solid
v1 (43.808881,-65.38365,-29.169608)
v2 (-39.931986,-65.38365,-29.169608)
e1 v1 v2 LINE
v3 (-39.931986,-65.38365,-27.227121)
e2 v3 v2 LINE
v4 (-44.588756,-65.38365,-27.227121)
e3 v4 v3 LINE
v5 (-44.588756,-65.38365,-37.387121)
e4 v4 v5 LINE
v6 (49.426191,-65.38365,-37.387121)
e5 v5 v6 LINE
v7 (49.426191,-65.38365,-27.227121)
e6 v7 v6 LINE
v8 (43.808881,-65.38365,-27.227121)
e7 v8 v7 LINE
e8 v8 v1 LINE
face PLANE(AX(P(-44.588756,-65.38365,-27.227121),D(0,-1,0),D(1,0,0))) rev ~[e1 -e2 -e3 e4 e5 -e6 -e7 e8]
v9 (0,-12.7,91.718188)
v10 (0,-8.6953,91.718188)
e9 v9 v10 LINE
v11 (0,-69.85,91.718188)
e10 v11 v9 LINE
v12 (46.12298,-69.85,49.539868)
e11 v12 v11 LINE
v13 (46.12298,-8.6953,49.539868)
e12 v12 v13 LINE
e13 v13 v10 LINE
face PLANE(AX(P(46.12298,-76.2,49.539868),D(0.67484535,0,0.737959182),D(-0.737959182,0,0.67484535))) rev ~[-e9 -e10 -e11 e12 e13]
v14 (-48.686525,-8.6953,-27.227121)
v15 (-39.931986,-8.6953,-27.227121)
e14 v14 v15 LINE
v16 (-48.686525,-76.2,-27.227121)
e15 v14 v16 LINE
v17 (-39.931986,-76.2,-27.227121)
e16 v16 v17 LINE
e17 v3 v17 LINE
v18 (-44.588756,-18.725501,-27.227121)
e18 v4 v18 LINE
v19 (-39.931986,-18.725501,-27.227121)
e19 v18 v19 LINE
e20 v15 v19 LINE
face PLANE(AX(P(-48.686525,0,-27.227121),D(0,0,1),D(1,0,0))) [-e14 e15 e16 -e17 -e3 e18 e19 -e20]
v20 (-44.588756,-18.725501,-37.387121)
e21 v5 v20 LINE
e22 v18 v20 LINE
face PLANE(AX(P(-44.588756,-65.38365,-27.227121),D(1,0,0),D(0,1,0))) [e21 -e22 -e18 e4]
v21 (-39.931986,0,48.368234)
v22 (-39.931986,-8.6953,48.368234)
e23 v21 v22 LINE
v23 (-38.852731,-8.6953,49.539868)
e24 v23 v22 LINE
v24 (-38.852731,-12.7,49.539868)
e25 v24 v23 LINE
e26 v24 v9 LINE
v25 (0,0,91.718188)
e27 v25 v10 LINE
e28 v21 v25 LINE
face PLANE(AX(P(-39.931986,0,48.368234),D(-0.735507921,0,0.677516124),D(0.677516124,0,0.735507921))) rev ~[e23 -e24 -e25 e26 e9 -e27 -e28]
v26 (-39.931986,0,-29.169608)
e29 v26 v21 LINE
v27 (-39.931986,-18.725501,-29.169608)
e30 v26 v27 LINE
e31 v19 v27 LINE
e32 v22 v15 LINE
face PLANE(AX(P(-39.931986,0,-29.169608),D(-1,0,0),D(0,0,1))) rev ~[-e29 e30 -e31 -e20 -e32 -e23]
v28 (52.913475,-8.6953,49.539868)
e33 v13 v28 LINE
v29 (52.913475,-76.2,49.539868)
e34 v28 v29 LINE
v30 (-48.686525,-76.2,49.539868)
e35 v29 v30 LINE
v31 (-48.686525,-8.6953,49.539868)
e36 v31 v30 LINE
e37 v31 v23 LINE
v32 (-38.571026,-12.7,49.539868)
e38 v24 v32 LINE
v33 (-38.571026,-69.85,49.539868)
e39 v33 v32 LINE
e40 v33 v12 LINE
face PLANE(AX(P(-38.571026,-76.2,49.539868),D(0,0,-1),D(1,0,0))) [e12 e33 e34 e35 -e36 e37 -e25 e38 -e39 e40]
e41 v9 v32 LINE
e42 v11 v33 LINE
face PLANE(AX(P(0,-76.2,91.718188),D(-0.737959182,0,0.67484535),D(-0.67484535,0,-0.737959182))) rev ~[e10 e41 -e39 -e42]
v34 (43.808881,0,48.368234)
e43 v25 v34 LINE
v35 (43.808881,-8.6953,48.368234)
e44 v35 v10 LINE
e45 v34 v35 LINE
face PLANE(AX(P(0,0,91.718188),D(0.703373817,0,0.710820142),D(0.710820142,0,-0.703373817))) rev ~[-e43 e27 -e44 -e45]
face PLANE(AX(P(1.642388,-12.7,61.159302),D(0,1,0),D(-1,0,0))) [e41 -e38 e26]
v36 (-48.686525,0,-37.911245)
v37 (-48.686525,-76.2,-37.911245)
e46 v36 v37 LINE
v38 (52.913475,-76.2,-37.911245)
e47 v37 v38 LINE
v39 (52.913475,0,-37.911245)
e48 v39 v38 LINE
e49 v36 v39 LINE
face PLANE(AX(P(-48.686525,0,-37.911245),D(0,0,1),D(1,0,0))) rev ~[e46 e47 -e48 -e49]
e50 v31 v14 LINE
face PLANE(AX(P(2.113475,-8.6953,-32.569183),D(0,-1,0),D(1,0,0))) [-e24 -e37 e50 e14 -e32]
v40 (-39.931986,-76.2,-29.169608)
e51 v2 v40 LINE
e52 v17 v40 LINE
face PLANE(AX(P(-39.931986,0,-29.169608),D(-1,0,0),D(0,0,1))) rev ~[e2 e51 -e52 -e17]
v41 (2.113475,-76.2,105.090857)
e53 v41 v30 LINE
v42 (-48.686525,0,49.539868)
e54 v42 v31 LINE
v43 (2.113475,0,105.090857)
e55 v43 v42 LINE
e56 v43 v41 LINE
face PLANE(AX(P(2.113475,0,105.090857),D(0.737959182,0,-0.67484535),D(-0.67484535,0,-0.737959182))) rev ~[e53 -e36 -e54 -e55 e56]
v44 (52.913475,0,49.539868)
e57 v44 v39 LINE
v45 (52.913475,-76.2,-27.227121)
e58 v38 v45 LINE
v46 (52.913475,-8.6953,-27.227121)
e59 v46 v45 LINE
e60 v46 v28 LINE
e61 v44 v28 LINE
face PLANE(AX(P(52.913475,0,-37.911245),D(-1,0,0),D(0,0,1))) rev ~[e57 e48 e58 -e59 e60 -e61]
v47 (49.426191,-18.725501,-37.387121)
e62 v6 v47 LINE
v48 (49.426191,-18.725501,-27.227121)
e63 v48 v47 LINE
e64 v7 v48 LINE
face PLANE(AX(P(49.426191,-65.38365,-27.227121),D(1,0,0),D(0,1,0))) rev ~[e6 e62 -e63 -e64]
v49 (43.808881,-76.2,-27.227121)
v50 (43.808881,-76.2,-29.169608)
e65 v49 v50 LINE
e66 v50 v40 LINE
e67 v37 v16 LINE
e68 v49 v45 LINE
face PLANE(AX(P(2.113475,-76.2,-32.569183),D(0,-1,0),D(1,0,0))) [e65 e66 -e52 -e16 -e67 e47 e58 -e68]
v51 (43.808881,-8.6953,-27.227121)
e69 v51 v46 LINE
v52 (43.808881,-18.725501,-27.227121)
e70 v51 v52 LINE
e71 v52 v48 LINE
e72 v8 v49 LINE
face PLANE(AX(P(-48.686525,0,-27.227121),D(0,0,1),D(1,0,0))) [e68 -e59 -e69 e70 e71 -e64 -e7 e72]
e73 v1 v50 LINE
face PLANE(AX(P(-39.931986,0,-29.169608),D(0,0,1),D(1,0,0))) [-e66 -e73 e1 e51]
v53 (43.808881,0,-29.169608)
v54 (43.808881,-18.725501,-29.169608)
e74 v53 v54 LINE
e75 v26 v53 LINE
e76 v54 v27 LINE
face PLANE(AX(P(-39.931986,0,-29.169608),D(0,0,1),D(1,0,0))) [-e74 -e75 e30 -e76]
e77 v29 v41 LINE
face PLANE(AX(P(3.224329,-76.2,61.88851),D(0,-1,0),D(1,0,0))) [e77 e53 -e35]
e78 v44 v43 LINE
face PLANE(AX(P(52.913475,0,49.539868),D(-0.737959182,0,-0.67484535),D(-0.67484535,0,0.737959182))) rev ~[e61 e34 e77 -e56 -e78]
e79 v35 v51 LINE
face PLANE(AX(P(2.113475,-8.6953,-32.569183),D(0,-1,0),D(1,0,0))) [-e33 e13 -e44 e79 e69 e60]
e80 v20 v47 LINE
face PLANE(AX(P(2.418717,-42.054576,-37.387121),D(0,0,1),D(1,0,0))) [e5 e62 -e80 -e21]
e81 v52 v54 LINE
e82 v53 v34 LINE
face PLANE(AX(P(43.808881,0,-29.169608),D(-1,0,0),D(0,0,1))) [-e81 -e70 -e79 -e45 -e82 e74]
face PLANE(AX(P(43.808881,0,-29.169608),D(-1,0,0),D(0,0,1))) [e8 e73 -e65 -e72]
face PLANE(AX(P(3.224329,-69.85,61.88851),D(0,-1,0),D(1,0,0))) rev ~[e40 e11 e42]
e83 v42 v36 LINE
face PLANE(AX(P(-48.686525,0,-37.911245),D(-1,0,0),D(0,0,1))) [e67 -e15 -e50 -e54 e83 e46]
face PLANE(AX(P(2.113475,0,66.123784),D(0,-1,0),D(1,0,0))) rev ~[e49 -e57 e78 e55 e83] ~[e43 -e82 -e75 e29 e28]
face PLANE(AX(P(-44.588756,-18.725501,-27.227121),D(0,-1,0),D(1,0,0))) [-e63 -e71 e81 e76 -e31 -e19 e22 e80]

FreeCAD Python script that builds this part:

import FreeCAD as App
import Part
import Sketcher
from FreeCAD import Vector
Q = App.Units.Quantity

doc = App.newDocument("Part")
body = doc.addObject("PartDesign::Body", "Body")

sketch1 = body.newObject("Sketcher::SketchObject", "Sketch")
sketch1.AttachmentSupport = (doc.getObject("XZ_Plane"), [""])
sketch1.MapMode = "FlatFace"
sketch1.addGeometry(Part.LineSegment(Vector(-49, -27, 0), Vector(-49, -38, 0)), False)
sketch1.addGeometry(Part.LineSegment(Vector(-49, -38, 0), Vector(53, -38, 0)), False)
sketch1.addGeometry(Part.LineSegment(Vector(53, -38, 0), Vector(53, -27, 0)), False)
sketch1.addGeometry(Part.LineSegment(Vector(53, -27, 0), Vector(-49, -27, 0)), False)
sketch1.addConstraint(Sketcher.Constraint("Coincident", 0, 2, 1, 1))
sketch1.addConstraint(Sketcher.Constraint("Coincident", 1, 2, 2, 1))
sketch1.addConstraint(Sketcher.Constraint("Coincident", 2, 2, 3, 1))
sketch1.addConstraint(Sketcher.Constraint("Coincident", 3, 2, 0, 1))
sketch1.addConstraint(Sketcher.Constraint("Vertical", 0))
sketch1.addConstraint(Sketcher.Constraint("Horizontal", 1))
sketch1.addConstraint(Sketcher.Constraint("Vertical", 2))
sketch1.addConstraint(Sketcher.Constraint("Horizontal", 3))
sketch1.addConstraint(Sketcher.Constraint("DistanceX", 1, 1, 1, 2, Q("4 in")))
sketch1.addConstraint(Sketcher.Constraint("DistanceY", 0, 2, 0, 1, Q("10.684125 mm")))
sketch1.addConstraint(Sketcher.Constraint("DistanceY", 2, 2, -1, 1, Q("27.227121 mm")))
sketch1.addConstraint(Sketcher.Constraint("DistanceX", 0, 2, -1, 1, Q("48.686525 mm")))
pad1 = body.newObject("PartDesign::Pad", "Pad")
pad1.Profile = sketch1
pad1.Length = Q("3 in")

sketch2 = body.newObject("Sketcher::SketchObject", "Sketch001")
sketch2.AttachmentSupport = (doc.getObject("XZ_Plane"), [""])
sketch2.MapMode = "FlatFace"
sketch2.addGeometry(Part.LineSegment(Vector(-49, -38, 0), Vector(53, -38, 0)), False)
sketch2.addGeometry(Part.LineSegment(Vector(53, -38, 0), Vector(53, 50, 0)), False)
sketch2.addGeometry(Part.LineSegment(Vector(53, 50, 0), Vector(-49, 50, 0)), False)
sketch2.addGeometry(Part.LineSegment(Vector(-49, 50, 0), Vector(-49, -38, 0)), False)
sketch2.addConstraint(Sketcher.Constraint("Coincident", 0, 2, 1, 1))
sketch2.addConstraint(Sketcher.Constraint("Coincident", 1, 2, 2, 1))
sketch2.addConstraint(Sketcher.Constraint("Coincident", 2, 2, 3, 1))
sketch2.addConstraint(Sketcher.Constraint("Coincident", 3, 2, 0, 1))
sketch2.addConstraint(Sketcher.Constraint("Horizontal", 0))
sketch2.addConstraint(Sketcher.Constraint("Vertical", 1))
sketch2.addConstraint(Sketcher.Constraint("Horizontal", 2))
sketch2.addConstraint(Sketcher.Constraint("Vertical", 3))
sketch2.addConstraint(Sketcher.Constraint("DistanceX", 0, 1, 0, 2, Q("4 in")))
sketch2.addConstraint(Sketcher.Constraint("DistanceY", 1, 1, 1, 2, Q("87.451113 mm")))
sketch2.addConstraint(Sketcher.Constraint("DistanceX", -1, 1, 0, 2, Q("52.913475 mm")))
sketch2.addConstraint(Sketcher.Constraint("DistanceY", 0, 2, -1, 1, Q("37.911245 mm")))
pad2 = body.newObject("PartDesign::Pad", "Pad001")
pad2.Profile = sketch2
pad2.Length = 8.6953

sketch3 = body.newObject("Sketcher::SketchObject", "Sketch002")
sketch3.AttachmentSupport = (doc.getObject("XZ_Plane"), [""])
sketch3.MapMode = "FlatFace"
sketch3.addGeometry(Part.LineSegment(Vector(2, 105, 0), Vector(-49, 50, 0)), False)
sketch3.addGeometry(Part.LineSegment(Vector(-49, 50, 0), Vector(53, 50, 0)), False)
sketch3.addGeometry(Part.LineSegment(Vector(53, 50, 0), Vector(2, 105, 0)), False)
sketch3.addConstraint(Sketcher.Constraint("Coincident", 0, 2, 1, 1))
sketch3.addConstraint(Sketcher.Constraint("Coincident", 1, 2, 2, 1))
sketch3.addConstraint(Sketcher.Constraint("Coincident", 2, 2, 0, 1))
sketch3.addConstraint(Sketcher.Constraint("Horizontal", 1))
sketch3.addConstraint(Sketcher.Constraint("Equal", 0, 2))
sketch3.addConstraint(Sketcher.Constraint("DistanceX", 1, 1, 1, 2, Q("4 in")))
sketch3.addConstraint(Sketcher.Constraint("DistanceY", 0, 2, 2, 2, Q("55.550989 mm")))
sketch3.addConstraint(Sketcher.Constraint("DistanceX", 0, 2, -1, 1, Q("48.686525 mm")))
sketch3.addConstraint(Sketcher.Constraint("DistanceY", -1, 1, 0, 2, Q("49.539868 mm")))
pad3 = body.newObject("PartDesign::Pad", "Pad002")
pad3.Profile = sketch3
pad3.Length = Q("3 in")

sketch4 = body.newObject("Sketcher::SketchObject", "Sketch003")
sketch4.AttachmentSupport = (doc.getObject("XY_Plane"), [""])
sketch4.MapMode = "FlatFace"
sketch4.AttachmentOffset = App.Placement(Vector(0, 0, -27.227121), App.Rotation())
sketch4.addGeometry(Part.LineSegment(Vector(-45, -19, 0), Vector(-45, -65, 0)), False)
sketch4.addGeometry(Part.LineSegment(Vector(-45, -65, 0), Vector(49, -65, 0)), False)
sketch4.addGeometry(Part.LineSegment(Vector(49, -65, 0), Vector(49, -19, 0)), False)
sketch4.addGeometry(Part.LineSegment(Vector(49, -19, 0), Vector(-45, -19, 0)), False)
sketch4.addConstraint(Sketcher.Constraint("Coincident", 0, 2, 1, 1))
sketch4.addConstraint(Sketcher.Constraint("Coincident", 1, 2, 2, 1))
sketch4.addConstraint(Sketcher.Constraint("Coincident", 2, 2, 3, 1))
sketch4.addConstraint(Sketcher.Constraint("Coincident", 3, 2, 0, 1))
sketch4.addConstraint(Sketcher.Constraint("Vertical", 0))
sketch4.addConstraint(Sketcher.Constraint("Horizontal", 1))
sketch4.addConstraint(Sketcher.Constraint("Vertical", 2))
sketch4.addConstraint(Sketcher.Constraint("Horizontal", 3))
sketch4.addConstraint(Sketcher.Constraint("DistanceY", 0, 2, 0, 1, Q("46.658149 mm")))
sketch4.addConstraint(Sketcher.Constraint("DistanceY", 2, 2, -1, 1, Q("18.725501 mm")))
sketch4.addConstraint(Sketcher.Constraint("DistanceX", 1, 1, 1, 2, Q("94.014946 mm")))
sketch4.addConstraint(Sketcher.Constraint("DistanceX", -1, 1, 1, 2, Q("49.426191 mm")))
pocket1 = body.newObject("PartDesign::Pocket", "Pocket")
pocket1.Profile = sketch4
pocket1.Length = Q("0.4 in")

sketch5 = body.newObject("Sketcher::SketchObject", "Sketch004")
sketch5.AttachmentSupport = (doc.getObject("XZ_Plane"), [""])
sketch5.MapMode = "FlatFace"
sketch5.AttachmentOffset = App.Placement(Vector(0, 0, 3 * 25.4), App.Rotation())
sketch5.addGeometry(Part.LineSegment(Vector(0, 92, 0), Vector(-39, 50, 0)), False)
sketch5.addGeometry(Part.LineSegment(Vector(-39, 50, 0), Vector(46, 50, 0)), False)
sketch5.addGeometry(Part.LineSegment(Vector(46, 50, 0), Vector(0, 92, 0)), False)
sketch5.addConstraint(Sketcher.Constraint("Coincident", 0, 2, 1, 1))
sketch5.addConstraint(Sketcher.Constraint("Coincident", 1, 2, 2, 1))
sketch5.addConstraint(Sketcher.Constraint("Coincident", 2, 2, 0, 1))
sketch5.addConstraint(Sketcher.Constraint("Horizontal", 1))
sketch5.addConstraint(Sketcher.Constraint("PointOnObject", 2, 2, -2))
sketch5.addConstraint(Sketcher.Constraint("Perpendicular", 0, 2))
sketch5.addConstraint(Sketcher.Constraint("Distance", 2, Q("62.500719 mm")))
sketch5.addConstraint(Sketcher.Constraint("DistanceX", 1, 1, 1, 2, Q("84.694006 mm")))
sketch5.addConstraint(Sketcher.Constraint("DistanceY", -1, 1, 0, 2, Q("49.539868 mm")))
pocket2 = body.newObject("PartDesign::Pocket", "Pocket001")
pocket2.Profile = sketch5
pocket2.Length = 67.5047

sketch6 = body.newObject("Sketcher::SketchObject", "Sketch005")
sketch6.AttachmentSupport = (doc.getObject("XZ_Plane"), [""])
sketch6.MapMode = "FlatFace"
sketch6.AttachmentOffset = App.Placement(Vector(0, 0, 3 * 25.4), App.Rotation())
sketch6.addGeometry(Part.LineSegment(Vector(0, 92, 0), Vector(-39, 50, 0)), False)
sketch6.addGeometry(Part.LineSegment(Vector(-39, 50, 0), Vector(46, 50, 0)), False)
sketch6.addGeometry(Part.LineSegment(Vector(46, 50, 0), Vector(0, 92, 0)), False)
sketch6.addConstraint(Sketcher.Constraint("Coincident", 0, 2, 1, 1))
sketch6.addConstraint(Sketcher.Constraint("Coincident", 1, 2, 2, 1))
sketch6.addConstraint(Sketcher.Constraint("Coincident", 2, 2, 0, 1))
sketch6.addConstraint(Sketcher.Constraint("Horizontal", 1))
sketch6.addConstraint(Sketcher.Constraint("PointOnObject", 2, 2, -2))
sketch6.addConstraint(Sketcher.Constraint("Perpendicular", 0, 2))
sketch6.addConstraint(Sketcher.Constraint("Distance", 2, Q("62.500719 mm")))
sketch6.addConstraint(Sketcher.Constraint("DistanceX", 1, 1, 1, 2, Q("84.694006 mm")))
sketch6.addConstraint(Sketcher.Constraint("DistanceY", -1, 1, 0, 2, Q("49.539868 mm")))
pad4 = body.newObject("PartDesign::Pad", "Pad003")
pad4.Profile = sketch6
pad4.Length = Q("0.25 in")
pad4.Reversed = True

sketch7 = body.newObject("Sketcher::SketchObject", "Sketch006")
sketch7.AttachmentSupport = (doc.getObject("XZ_Plane"), [""])
sketch7.MapMode = "FlatFace"
sketch7.addGeometry(Part.LineSegment(Vector(-40, 48, 0), Vector(-40, -29, 0)), False)
sketch7.addGeometry(Part.LineSegment(Vector(-40, -29, 0), Vector(44, -29, 0)), False)
sketch7.addGeometry(Part.LineSegment(Vector(44, -29, 0), Vector(44, 48, 0)), False)
sketch7.addGeometry(Part.LineSegment(Vector(44, 48, 0), Vector(-40, 48, 0)), False)
sketch7.addConstraint(Sketcher.Constraint("Coincident", 0, 2, 1, 1))
sketch7.addConstraint(Sketcher.Constraint("Coincident", 1, 2, 2, 1))
sketch7.addConstraint(Sketcher.Constraint("Coincident", 2, 2, 3, 1))
sketch7.addConstraint(Sketcher.Constraint("Coincident", 3, 2, 0, 1))
sketch7.addConstraint(Sketcher.Constraint("Vertical", 0))
sketch7.addConstraint(Sketcher.Constraint("Horizontal", 1))
sketch7.addConstraint(Sketcher.Constraint("Vertical", 2))
sketch7.addConstraint(Sketcher.Constraint("Horizontal", 3))
sketch7.addConstraint(Sketcher.Constraint("DistanceX", 1, 1, 1, 2, Q("83.740868 mm")))
sketch7.addConstraint(Sketcher.Constraint("DistanceY", 0, 2, 0, 1, Q("77.537842 mm")))
sketch7.addConstraint(Sketcher.Constraint("DistanceX", -1, 1, 1, 2, Q("43.808881 mm")))
sketch7.addConstraint(Sketcher.Constraint("DistanceY", 0, 2, -1, 1, Q("29.169608 mm")))
pocket3 = body.newObject("PartDesign::Pocket", "Pocket002")
pocket3.Profile = sketch7
pocket3.Type = "ThroughAll"
pocket3.Reversed = True

sketch8 = body.newObject("Sketcher::SketchObject", "Sketch007")
sketch8.AttachmentSupport = (doc.getObject("XZ_Plane"), [""])
sketch8.MapMode = "FlatFace"
sketch8.addGeometry(Part.LineSegment(Vector(0, 92, 0), Vector(44, 48, 0)), False)
sketch8.addGeometry(Part.LineSegment(Vector(44, 48, 0), Vector(-40, 48, 0)), False)
sketch8.addGeometry(Part.LineSegment(Vector(-40, 48, 0), Vector(0, 92, 0)), False)
sketch8.addConstraint(Sketcher.Constraint("Coincident", 0, 2, 1, 1))
sketch8.addConstraint(Sketcher.Constraint("Coincident", 1, 2, 2, 1))
sketch8.addConstraint(Sketcher.Constraint("Coincident", 2, 2, 0, 1))
sketch8.addConstraint(Sketcher.Constraint("Horizontal", 1))
sketch8.addConstraint(Sketcher.Constraint("PointOnObject", 2, 2, -2))
sketch8.addConstraint(Sketcher.Constraint("Distance", 2, Q("58.938799 mm")))
sketch8.addConstraint(Sketcher.Constraint("DistanceX", 1, 2, 1, 1, Q("83.740868 mm")))
sketch8.addConstraint(Sketcher.Constraint("DistanceX", -1, 1, 0, 2, Q("43.808881 mm")))
sketch8.addConstraint(Sketcher.Constraint("DistanceY", -1, 1, 0, 2, Q("48.368234 mm")))
pocket4 = body.newObject("PartDesign::Pocket", "Pocket003")
pocket4.Profile = sketch8
pocket4.Length = Q("0.5 in")
pocket4.Reversed = True

doc.recompute()
